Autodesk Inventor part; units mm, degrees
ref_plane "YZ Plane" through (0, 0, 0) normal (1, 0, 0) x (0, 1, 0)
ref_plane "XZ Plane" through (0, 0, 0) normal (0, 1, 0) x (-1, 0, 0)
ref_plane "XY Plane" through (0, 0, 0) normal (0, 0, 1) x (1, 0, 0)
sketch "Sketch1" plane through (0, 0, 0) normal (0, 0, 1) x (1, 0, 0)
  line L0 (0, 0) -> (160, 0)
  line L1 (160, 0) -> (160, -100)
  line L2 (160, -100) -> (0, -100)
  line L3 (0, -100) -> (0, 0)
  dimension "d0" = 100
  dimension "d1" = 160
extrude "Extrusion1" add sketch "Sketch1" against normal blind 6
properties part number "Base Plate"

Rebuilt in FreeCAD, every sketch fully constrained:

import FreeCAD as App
import Part
import Sketcher

V = App.Vector

doc = App.newDocument("Part")
body = doc.addObject("PartDesign::Body", "Body")

# Sketch on XY plane
sketch1 = body.newObject("Sketcher::SketchObject", "Sketch")
sketch1.AttachmentSupport = (doc.getObject("XY_Plane"), [""])
sketch1.MapMode = "FlatFace"
sketch1.addGeometry([
    Part.LineSegment(V(160, 0, 0), V(0, 0, 0)),
    Part.LineSegment(V(0, 0, 0), V(0, -100, 0)),
    Part.LineSegment(V(0, -100, 0), V(160, -100, 0)),
    Part.LineSegment(V(160, -100, 0), V(160, 0, 0)),
], False)
sketch1.addConstraint([
    Sketcher.Constraint("Coincident", 0, 2, 1, 1),
    Sketcher.Constraint("Coincident", 1, 2, 2, 1),
    Sketcher.Constraint("Coincident", 2, 2, 3, 1),
    Sketcher.Constraint("Coincident", 3, 2, 0, 1),
    Sketcher.Constraint("Horizontal", 0),
    Sketcher.Constraint("Vertical", 1),
    Sketcher.Constraint("Horizontal", 2),
    Sketcher.Constraint("Vertical", 3),
    Sketcher.Constraint("Coincident", 0, 2, -1, 1),
    Sketcher.Constraint("DistanceX", 0, 2, 0, 1, 160.0),
    Sketcher.Constraint("DistanceY", 1, 2, 1, 1, 100.0),
])
pad1 = body.newObject("PartDesign::Pad", "Pad")
pad1.Profile = sketch1
pad1.Length = 6
pad1.Reversed = True

doc.recompute()
